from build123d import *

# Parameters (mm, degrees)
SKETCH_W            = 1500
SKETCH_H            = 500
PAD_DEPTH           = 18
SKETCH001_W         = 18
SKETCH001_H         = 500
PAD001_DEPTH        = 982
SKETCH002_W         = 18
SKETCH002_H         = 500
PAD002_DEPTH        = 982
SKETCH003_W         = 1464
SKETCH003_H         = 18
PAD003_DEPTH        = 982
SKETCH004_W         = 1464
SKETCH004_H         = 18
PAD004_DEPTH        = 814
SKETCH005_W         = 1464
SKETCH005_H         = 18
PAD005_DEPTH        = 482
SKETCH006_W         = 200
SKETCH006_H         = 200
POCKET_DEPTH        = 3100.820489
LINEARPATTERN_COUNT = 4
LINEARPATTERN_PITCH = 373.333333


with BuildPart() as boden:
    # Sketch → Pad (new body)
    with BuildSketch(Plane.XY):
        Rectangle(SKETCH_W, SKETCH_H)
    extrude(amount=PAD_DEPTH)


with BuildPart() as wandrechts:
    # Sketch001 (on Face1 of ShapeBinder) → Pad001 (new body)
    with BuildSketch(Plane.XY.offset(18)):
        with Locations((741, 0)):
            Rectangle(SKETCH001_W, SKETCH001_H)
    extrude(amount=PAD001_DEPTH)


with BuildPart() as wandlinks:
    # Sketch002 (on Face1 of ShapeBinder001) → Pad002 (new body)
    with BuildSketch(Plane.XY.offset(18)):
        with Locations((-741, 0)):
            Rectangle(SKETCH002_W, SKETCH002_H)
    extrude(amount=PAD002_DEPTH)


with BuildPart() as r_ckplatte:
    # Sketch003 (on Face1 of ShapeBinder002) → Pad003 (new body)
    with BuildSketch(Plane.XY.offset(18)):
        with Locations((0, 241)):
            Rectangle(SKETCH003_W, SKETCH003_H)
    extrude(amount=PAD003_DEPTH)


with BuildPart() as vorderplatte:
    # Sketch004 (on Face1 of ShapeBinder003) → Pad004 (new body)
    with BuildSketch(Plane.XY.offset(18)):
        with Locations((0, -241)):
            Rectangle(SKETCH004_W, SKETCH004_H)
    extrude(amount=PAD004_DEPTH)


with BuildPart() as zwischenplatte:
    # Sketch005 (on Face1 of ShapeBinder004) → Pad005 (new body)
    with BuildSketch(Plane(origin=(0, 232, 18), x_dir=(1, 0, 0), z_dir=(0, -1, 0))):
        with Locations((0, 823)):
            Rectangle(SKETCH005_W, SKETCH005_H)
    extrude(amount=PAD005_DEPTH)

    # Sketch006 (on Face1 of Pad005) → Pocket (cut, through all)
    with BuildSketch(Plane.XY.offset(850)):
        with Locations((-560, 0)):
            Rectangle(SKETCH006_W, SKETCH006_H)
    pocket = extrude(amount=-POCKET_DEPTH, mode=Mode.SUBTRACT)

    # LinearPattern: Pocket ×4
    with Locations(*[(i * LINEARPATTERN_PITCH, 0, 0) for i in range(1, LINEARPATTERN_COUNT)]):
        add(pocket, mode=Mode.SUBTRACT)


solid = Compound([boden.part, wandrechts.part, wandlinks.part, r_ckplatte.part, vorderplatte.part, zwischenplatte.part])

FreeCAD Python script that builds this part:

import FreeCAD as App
import Part
import Sketcher

V = App.Vector
Q = App.Units.Quantity

doc = App.newDocument("Part")
body = doc.addObject("PartDesign::Body", "Body")

# Sketch on XY plane
sketch1 = body.newObject("Sketcher::SketchObject", "Sketch")
sketch1.AttachmentSupport = (doc.getObject("XY_Plane"), [""])
sketch1.MapMode = "FlatFace"
sketch1.addGeometry([
    Part.LineSegment(V(-750, 250, 0), V(-750, -250, 0)),
    Part.LineSegment(V(-750, -250, 0), V(750, -250, 0)),
    Part.LineSegment(V(750, -250, 0), V(750, 250, 0)),
    Part.LineSegment(V(750, 250, 0), V(-750, 250, 0)),
], False)
sketch1.addConstraint([
    Sketcher.Constraint("Coincident", 0, 2, 1, 1),
    Sketcher.Constraint("Coincident", 1, 2, 2, 1),
    Sketcher.Constraint("Coincident", 2, 2, 3, 1),
    Sketcher.Constraint("Coincident", 3, 2, 0, 1),
    Sketcher.Constraint("Vertical", 0),
    Sketcher.Constraint("Horizontal", 1),
    Sketcher.Constraint("Vertical", 2),
    Sketcher.Constraint("Horizontal", 3),
    Sketcher.Constraint("Symmetric", 0, 2, 2, 2, -1, 1),
    Sketcher.Constraint("DistanceX", 1, 1, 1, 2, Q("1500 mm")),
    Sketcher.Constraint("DistanceY", 0, 2, 0, 1, Q("500 mm")),
])
pad1 = body.newObject("PartDesign::Pad", "Pad")
pad1.Profile = sketch1
pad1.Length = 18
body2 = doc.addObject("PartDesign::Body", "Body001")

# Sketch on XY plane
sketch2 = body2.newObject("Sketcher::SketchObject", "Sketch001")
sketch2.AttachmentSupport = (doc.getObject("XY_Plane001"), [""])
sketch2.MapMode = "FlatFace"
sketch2.AttachmentOffset = App.Placement(V(0, 0, 18), App.Rotation())
sketch2.addGeometry([
    Part.LineSegment(V(732, 250, 0), V(732, -250, 0)),
    Part.LineSegment(V(732, -250, 0), V(750, -250, 0)),
    Part.LineSegment(V(750, -250, 0), V(750, 250, 0)),
    Part.LineSegment(V(750, 250, 0), V(732, 250, 0)),
], False)
sketch2.addConstraint([
    Sketcher.Constraint("Coincident", 0, 2, 1, 1),
    Sketcher.Constraint("Coincident", 1, 2, 2, 1),
    Sketcher.Constraint("Coincident", 2, 2, 3, 1),
    Sketcher.Constraint("Coincident", 3, 2, 0, 1),
    Sketcher.Constraint("Vertical", 0),
    Sketcher.Constraint("Horizontal", 1),
    Sketcher.Constraint("Vertical", 2),
    Sketcher.Constraint("Horizontal", 3),
    Sketcher.Constraint("DistanceX", 1, 1, 1, 2, Q("18 mm")),
    Sketcher.Constraint("DistanceY", 0, 2, 0, 1, Q("500 mm")),
    Sketcher.Constraint("DistanceX", -1, 1, 0, 2, Q("732 mm")),
    Sketcher.Constraint("DistanceY", 0, 2, -1, 1, Q("250 mm")),
])
pad2 = body2.newObject("PartDesign::Pad", "Pad001")
pad2.Profile = sketch2
pad2.Length = 982
body3 = doc.addObject("PartDesign::Body", "Body002")

# Sketch on XY plane
sketch3 = body3.newObject("Sketcher::SketchObject", "Sketch002")
sketch3.AttachmentSupport = (doc.getObject("XY_Plane002"), [""])
sketch3.MapMode = "FlatFace"
sketch3.AttachmentOffset = App.Placement(V(0, 0, 18), App.Rotation())
sketch3.addGeometry([
    Part.LineSegment(V(-750, 250, 0), V(-750, -250, 0)),
    Part.LineSegment(V(-750, -250, 0), V(-732, -250, 0)),
    Part.LineSegment(V(-732, -250, 0), V(-732, 250, 0)),
    Part.LineSegment(V(-732, 250, 0), V(-750, 250, 0)),
], False)
sketch3.addConstraint([
    Sketcher.Constraint("Coincident", 0, 2, 1, 1),
    Sketcher.Constraint("Coincident", 1, 2, 2, 1),
    Sketcher.Constraint("Coincident", 2, 2, 3, 1),
    Sketcher.Constraint("Coincident", 3, 2, 0, 1),
    Sketcher.Constraint("Vertical", 0),
    Sketcher.Constraint("Horizontal", 1),
    Sketcher.Constraint("Vertical", 2),
    Sketcher.Constraint("Horizontal", 3),
    Sketcher.Constraint("DistanceX", 1, 1, 1, 2, Q("18 mm")),
    Sketcher.Constraint("DistanceY", 0, 2, 0, 1, Q("500 mm")),
    Sketcher.Constraint("DistanceX", 0, 2, -1, 1, Q("750 mm")),
    Sketcher.Constraint("DistanceY", 0, 2, -1, 1, Q("250 mm")),
])
pad3 = body3.newObject("PartDesign::Pad", "Pad002")
pad3.Profile = sketch3
pad3.Length = 982
body4 = doc.addObject("PartDesign::Body", "Body003")

# Sketch on XY plane
sketch4 = body4.newObject("Sketcher::SketchObject", "Sketch003")
sketch4.AttachmentSupport = (doc.getObject("XY_Plane003"), [""])
sketch4.MapMode = "FlatFace"
sketch4.AttachmentOffset = App.Placement(V(0, 0, 18), App.Rotation())
sketch4.addGeometry([
    Part.LineSegment(V(-732, 250, 0), V(-732, 232, 0)),
    Part.LineSegment(V(-732, 232, 0), V(732, 232, 0)),
    Part.LineSegment(V(732, 232, 0), V(732, 250, 0)),
    Part.LineSegment(V(732, 250, 0), V(-732, 250, 0)),
], False)
sketch4.addConstraint([
    Sketcher.Constraint("Coincident", 0, 2, 1, 1),
    Sketcher.Constraint("Coincident", 1, 2, 2, 1),
    Sketcher.Constraint("Coincident", 2, 2, 3, 1),
    Sketcher.Constraint("Coincident", 3, 2, 0, 1),
    Sketcher.Constraint("Vertical", 0),
    Sketcher.Constraint("Horizontal", 1),
    Sketcher.Constraint("Vertical", 2),
    Sketcher.Constraint("Horizontal", 3),
    Sketcher.Constraint("DistanceX", 1, 1, 1, 2, Q("1464 mm")),
    Sketcher.Constraint("DistanceY", 0, 2, 0, 1, Q("18 mm")),
    Sketcher.Constraint("DistanceX", 0, 2, -1, 1, Q("732 mm")),
    Sketcher.Constraint("DistanceY", -1, 1, 0, 2, Q("232 mm")),
])
pad4 = body4.newObject("PartDesign::Pad", "Pad003")
pad4.Profile = sketch4
pad4.Length = 982
body5 = doc.addObject("PartDesign::Body", "Body004")

# Sketch on XY plane
sketch5 = body5.newObject("Sketcher::SketchObject", "Sketch004")
sketch5.AttachmentSupport = (doc.getObject("XY_Plane004"), [""])
sketch5.MapMode = "FlatFace"
sketch5.AttachmentOffset = App.Placement(V(0, 0, 18), App.Rotation())
sketch5.addGeometry([
    Part.LineSegment(V(-732, -232, 0), V(-732, -250, 0)),
    Part.LineSegment(V(-732, -250, 0), V(732, -250, 0)),
    Part.LineSegment(V(732, -250, 0), V(732, -232, 0)),
    Part.LineSegment(V(732, -232, 0), V(-732, -232, 0)),
], False)
sketch5.addConstraint([
    Sketcher.Constraint("Coincident", 0, 2, 1, 1),
    Sketcher.Constraint("Coincident", 1, 2, 2, 1),
    Sketcher.Constraint("Coincident", 2, 2, 3, 1),
    Sketcher.Constraint("Coincident", 3, 2, 0, 1),
    Sketcher.Constraint("Vertical", 0),
    Sketcher.Constraint("Horizontal", 1),
    Sketcher.Constraint("Vertical", 2),
    Sketcher.Constraint("Horizontal", 3),
    Sketcher.Constraint("DistanceX", 1, 1, 1, 2, Q("1464 mm")),
    Sketcher.Constraint("DistanceY", 0, 2, 0, 1, Q("18 mm")),
    Sketcher.Constraint("DistanceX", 0, 2, -1, 1, Q("732 mm")),
    Sketcher.Constraint("DistanceY", 0, 2, -1, 1, Q("250 mm")),
])
pad5 = body5.newObject("PartDesign::Pad", "Pad004")
pad5.Profile = sketch5
pad5.Length = 814
body6 = doc.addObject("PartDesign::Body", "Body005")

# Sketch on XZ plane
sketch6 = body6.newObject("Sketcher::SketchObject", "Sketch005")
sketch6.AttachmentSupport = (doc.getObject("XZ_Plane005"), [""])
sketch6.MapMode = "FlatFace"
sketch6.AttachmentOffset = App.Placement(V(0, 0, -232), App.Rotation())
sketch6.addGeometry([
    Part.LineSegment(V(-732, 850, 0), V(-732, 832, 0)),
    Part.LineSegment(V(-732, 832, 0), V(732, 832, 0)),
    Part.LineSegment(V(732, 832, 0), V(732, 850, 0)),
    Part.LineSegment(V(732, 850, 0), V(-732, 850, 0)),
], False)
sketch6.addConstraint([
    Sketcher.Constraint("Coincident", 0, 2, 1, 1),
    Sketcher.Constraint("Coincident", 1, 2, 2, 1),
    Sketcher.Constraint("Coincident", 2, 2, 3, 1),
    Sketcher.Constraint("Coincident", 3, 2, 0, 1),
    Sketcher.Constraint("Vertical", 0),
    Sketcher.Constraint("Horizontal", 1),
    Sketcher.Constraint("Vertical", 2),
    Sketcher.Constraint("Horizontal", 3),
    Sketcher.Constraint("DistanceX", 1, 1, 1, 2, Q("1464 mm")),
    Sketcher.Constraint("DistanceY", 0, 2, 0, 1, Q("18 mm")),
    Sketcher.Constraint("DistanceX", 0, 2, -1, 1, Q("732 mm")),
    Sketcher.Constraint("DistanceY", -1, 1, 0, 2, Q("832 mm")),
])
pad6 = body6.newObject("PartDesign::Pad", "Pad005")
pad6.Profile = sketch6
pad6.Length = 482

# Sketch on XY plane
sketch7 = body6.newObject("Sketcher::SketchObject", "Sketch006")
sketch7.AttachmentSupport = (doc.getObject("XY_Plane005"), [""])
sketch7.MapMode = "FlatFace"
sketch7.AttachmentOffset = App.Placement(V(0, 0, 850), App.Rotation())
sketch7.addGeometry([
    Part.LineSegment(V(-660, 100, 0), V(-660, -100, 0)),
    Part.LineSegment(V(-660, -100, 0), V(-460, -100, 0)),
    Part.LineSegment(V(-460, -100, 0), V(-460, 100, 0)),
    Part.LineSegment(V(-460, 100, 0), V(-660, 100, 0)),
], False)
sketch7.addConstraint([
    Sketcher.Constraint("Coincident", 0, 2, 1, 1),
    Sketcher.Constraint("Coincident", 1, 2, 2, 1),
    Sketcher.Constraint("Coincident", 2, 2, 3, 1),
    Sketcher.Constraint("Coincident", 3, 2, 0, 1),
    Sketcher.Constraint("Vertical", 0),
    Sketcher.Constraint("Horizontal", 1),
    Sketcher.Constraint("Vertical", 2),
    Sketcher.Constraint("Horizontal", 3),
    Sketcher.Constraint("Equal", 3, 0),
    Sketcher.Constraint("DistanceX", 1, 1, 1, 2, Q("200 mm")),
    Sketcher.Constraint("DistanceX", 0, 2, -1, 1, Q("660 mm")),
    Sketcher.Constraint("DistanceY", 0, 2, -1, 1, Q("100 mm")),
])
pocket1 = body6.newObject("PartDesign::Pocket", "Pocket")
pocket1.Profile = sketch7
pocket1.Type = "ThroughAll"
doc.recompute()

linearpattern = body6.newObject("PartDesign::LinearPattern", "LinearPattern")
linearpattern.Originals = [pocket1]
linearpattern.Direction = (doc.getObject("X_Axis005"), [""])
linearpattern.Mode = "offset"
linearpattern.Offset = 373.333333
linearpattern.Occurrences = 4
body6.Tip = linearpattern

doc.recompute()
